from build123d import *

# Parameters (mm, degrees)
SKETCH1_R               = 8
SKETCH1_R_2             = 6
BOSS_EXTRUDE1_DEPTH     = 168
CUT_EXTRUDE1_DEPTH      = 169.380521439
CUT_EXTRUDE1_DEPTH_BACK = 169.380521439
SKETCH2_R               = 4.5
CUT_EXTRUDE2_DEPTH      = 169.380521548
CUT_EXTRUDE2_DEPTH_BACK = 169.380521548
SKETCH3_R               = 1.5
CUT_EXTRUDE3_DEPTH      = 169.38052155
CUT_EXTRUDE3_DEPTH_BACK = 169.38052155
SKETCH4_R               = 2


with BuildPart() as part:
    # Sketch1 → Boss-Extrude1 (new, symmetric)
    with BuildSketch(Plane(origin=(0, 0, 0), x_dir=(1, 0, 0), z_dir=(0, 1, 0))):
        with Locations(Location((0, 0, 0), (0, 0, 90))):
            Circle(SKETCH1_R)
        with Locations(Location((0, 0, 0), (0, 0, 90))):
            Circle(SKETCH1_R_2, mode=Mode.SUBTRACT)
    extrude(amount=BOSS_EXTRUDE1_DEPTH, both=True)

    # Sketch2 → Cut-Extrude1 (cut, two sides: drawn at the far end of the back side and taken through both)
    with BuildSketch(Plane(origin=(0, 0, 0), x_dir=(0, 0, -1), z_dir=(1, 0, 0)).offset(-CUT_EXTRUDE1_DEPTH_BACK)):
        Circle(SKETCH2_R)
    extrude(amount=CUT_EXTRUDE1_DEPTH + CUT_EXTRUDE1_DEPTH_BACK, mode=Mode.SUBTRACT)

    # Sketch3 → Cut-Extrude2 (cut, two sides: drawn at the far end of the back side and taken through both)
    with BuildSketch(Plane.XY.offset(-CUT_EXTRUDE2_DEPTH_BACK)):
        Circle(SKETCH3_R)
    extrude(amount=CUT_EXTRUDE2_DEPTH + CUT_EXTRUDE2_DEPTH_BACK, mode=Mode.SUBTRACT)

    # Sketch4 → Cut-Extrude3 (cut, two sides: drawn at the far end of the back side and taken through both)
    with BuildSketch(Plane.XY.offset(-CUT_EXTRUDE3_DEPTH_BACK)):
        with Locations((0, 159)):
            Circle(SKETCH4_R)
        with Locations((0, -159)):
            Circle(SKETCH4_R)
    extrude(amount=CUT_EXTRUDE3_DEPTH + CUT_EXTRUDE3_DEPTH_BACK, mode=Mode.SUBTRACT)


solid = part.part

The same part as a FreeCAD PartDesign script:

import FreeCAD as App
import Part
import Sketcher

V = App.Vector
Q = App.Units.Quantity

doc = App.newDocument("Part")
body = doc.addObject("PartDesign::Body", "Body")

# Sketch on XZ plane
sketch1 = body.newObject("Sketcher::SketchObject", "Sketch")
sketch1.AttachmentSupport = (doc.getObject("XZ_Plane"), [""])
sketch1.MapMode = "FlatFace"
sketch1.addGeometry([
    Part.Circle(V(0, 0, 0), V(0, 0, 1), 8),
    Part.Circle(V(0, 0, 0), V(0, 0, 1), 6),
], False)
sketch1.addConstraint([
    Sketcher.Constraint("Coincident", 0, 3, -1, 1),
    Sketcher.Constraint("Coincident", 1, 3, -1, 1),
    Sketcher.Constraint("Diameter", 0, Q("16 mm")),
    Sketcher.Constraint("Diameter", 1, Q("12 mm")),
])
pad1 = body.newObject("PartDesign::Pad", "Pad")
pad1.Profile = sketch1
pad1.Length = 336
pad1.Midplane = True

# Sketch on YZ plane
sketch2 = body.newObject("Sketcher::SketchObject", "Sketch001")
sketch2.AttachmentSupport = (doc.getObject("YZ_Plane"), [""])
sketch2.MapMode = "FlatFace"
sketch2.addGeometry(Part.Circle(V(0, 0, 0), V(0, 0, 1), 4.5), False)
sketch2.addConstraint([
    Sketcher.Constraint("Coincident", 0, 3, -1, 1),
    Sketcher.Constraint("Diameter", 0, Q("9 mm")),
])
pocket1 = body.newObject("PartDesign::Pocket", "Pocket")
pocket1.Profile = sketch2
pocket1.Type = "ThroughAll"
pocket1.Midplane = True

# Sketch on XY plane
sketch3 = body.newObject("Sketcher::SketchObject", "Sketch002")
sketch3.AttachmentSupport = (doc.getObject("XY_Plane"), [""])
sketch3.MapMode = "FlatFace"
sketch3.addGeometry(Part.Circle(V(0, 0, 0), V(0, 0, 1), 1.5), False)
sketch3.addConstraint([
    Sketcher.Constraint("Coincident", 0, 3, -1, 1),
    Sketcher.Constraint("Diameter", 0, Q("3 mm")),
])
pocket2 = body.newObject("PartDesign::Pocket", "Pocket001")
pocket2.Profile = sketch3
pocket2.Type = "ThroughAll"
pocket2.Midplane = True

# Sketch on XY plane
sketch4 = body.newObject("Sketcher::SketchObject", "Sketch003")
sketch4.AttachmentSupport = (doc.getObject("XY_Plane"), [""])
sketch4.MapMode = "FlatFace"
sketch4.addGeometry([
    Part.Circle(V(0, 159, 0), V(0, 0, 1), 2),
    Part.Circle(V(0, -159, 0), V(0, 0, 1), 2),
], False)
sketch4.addConstraint([
    Sketcher.Constraint("Equal", 0, 1),
    Sketcher.Constraint("Symmetric", 0, 3, 1, 3, -1, 1),
    Sketcher.Constraint("PointOnObject", 0, 3, -2),
    Sketcher.Constraint("Diameter", 0, Q("4 mm")),
    Sketcher.Constraint("DistanceY", -1, 1, 0, 3, Q("159 mm")),
])
pocket3 = body.newObject("PartDesign::Pocket", "Pocket002")
pocket3.Profile = sketch4
pocket3.Type = "ThroughAll"
pocket3.Midplane = True

doc.recompute()
